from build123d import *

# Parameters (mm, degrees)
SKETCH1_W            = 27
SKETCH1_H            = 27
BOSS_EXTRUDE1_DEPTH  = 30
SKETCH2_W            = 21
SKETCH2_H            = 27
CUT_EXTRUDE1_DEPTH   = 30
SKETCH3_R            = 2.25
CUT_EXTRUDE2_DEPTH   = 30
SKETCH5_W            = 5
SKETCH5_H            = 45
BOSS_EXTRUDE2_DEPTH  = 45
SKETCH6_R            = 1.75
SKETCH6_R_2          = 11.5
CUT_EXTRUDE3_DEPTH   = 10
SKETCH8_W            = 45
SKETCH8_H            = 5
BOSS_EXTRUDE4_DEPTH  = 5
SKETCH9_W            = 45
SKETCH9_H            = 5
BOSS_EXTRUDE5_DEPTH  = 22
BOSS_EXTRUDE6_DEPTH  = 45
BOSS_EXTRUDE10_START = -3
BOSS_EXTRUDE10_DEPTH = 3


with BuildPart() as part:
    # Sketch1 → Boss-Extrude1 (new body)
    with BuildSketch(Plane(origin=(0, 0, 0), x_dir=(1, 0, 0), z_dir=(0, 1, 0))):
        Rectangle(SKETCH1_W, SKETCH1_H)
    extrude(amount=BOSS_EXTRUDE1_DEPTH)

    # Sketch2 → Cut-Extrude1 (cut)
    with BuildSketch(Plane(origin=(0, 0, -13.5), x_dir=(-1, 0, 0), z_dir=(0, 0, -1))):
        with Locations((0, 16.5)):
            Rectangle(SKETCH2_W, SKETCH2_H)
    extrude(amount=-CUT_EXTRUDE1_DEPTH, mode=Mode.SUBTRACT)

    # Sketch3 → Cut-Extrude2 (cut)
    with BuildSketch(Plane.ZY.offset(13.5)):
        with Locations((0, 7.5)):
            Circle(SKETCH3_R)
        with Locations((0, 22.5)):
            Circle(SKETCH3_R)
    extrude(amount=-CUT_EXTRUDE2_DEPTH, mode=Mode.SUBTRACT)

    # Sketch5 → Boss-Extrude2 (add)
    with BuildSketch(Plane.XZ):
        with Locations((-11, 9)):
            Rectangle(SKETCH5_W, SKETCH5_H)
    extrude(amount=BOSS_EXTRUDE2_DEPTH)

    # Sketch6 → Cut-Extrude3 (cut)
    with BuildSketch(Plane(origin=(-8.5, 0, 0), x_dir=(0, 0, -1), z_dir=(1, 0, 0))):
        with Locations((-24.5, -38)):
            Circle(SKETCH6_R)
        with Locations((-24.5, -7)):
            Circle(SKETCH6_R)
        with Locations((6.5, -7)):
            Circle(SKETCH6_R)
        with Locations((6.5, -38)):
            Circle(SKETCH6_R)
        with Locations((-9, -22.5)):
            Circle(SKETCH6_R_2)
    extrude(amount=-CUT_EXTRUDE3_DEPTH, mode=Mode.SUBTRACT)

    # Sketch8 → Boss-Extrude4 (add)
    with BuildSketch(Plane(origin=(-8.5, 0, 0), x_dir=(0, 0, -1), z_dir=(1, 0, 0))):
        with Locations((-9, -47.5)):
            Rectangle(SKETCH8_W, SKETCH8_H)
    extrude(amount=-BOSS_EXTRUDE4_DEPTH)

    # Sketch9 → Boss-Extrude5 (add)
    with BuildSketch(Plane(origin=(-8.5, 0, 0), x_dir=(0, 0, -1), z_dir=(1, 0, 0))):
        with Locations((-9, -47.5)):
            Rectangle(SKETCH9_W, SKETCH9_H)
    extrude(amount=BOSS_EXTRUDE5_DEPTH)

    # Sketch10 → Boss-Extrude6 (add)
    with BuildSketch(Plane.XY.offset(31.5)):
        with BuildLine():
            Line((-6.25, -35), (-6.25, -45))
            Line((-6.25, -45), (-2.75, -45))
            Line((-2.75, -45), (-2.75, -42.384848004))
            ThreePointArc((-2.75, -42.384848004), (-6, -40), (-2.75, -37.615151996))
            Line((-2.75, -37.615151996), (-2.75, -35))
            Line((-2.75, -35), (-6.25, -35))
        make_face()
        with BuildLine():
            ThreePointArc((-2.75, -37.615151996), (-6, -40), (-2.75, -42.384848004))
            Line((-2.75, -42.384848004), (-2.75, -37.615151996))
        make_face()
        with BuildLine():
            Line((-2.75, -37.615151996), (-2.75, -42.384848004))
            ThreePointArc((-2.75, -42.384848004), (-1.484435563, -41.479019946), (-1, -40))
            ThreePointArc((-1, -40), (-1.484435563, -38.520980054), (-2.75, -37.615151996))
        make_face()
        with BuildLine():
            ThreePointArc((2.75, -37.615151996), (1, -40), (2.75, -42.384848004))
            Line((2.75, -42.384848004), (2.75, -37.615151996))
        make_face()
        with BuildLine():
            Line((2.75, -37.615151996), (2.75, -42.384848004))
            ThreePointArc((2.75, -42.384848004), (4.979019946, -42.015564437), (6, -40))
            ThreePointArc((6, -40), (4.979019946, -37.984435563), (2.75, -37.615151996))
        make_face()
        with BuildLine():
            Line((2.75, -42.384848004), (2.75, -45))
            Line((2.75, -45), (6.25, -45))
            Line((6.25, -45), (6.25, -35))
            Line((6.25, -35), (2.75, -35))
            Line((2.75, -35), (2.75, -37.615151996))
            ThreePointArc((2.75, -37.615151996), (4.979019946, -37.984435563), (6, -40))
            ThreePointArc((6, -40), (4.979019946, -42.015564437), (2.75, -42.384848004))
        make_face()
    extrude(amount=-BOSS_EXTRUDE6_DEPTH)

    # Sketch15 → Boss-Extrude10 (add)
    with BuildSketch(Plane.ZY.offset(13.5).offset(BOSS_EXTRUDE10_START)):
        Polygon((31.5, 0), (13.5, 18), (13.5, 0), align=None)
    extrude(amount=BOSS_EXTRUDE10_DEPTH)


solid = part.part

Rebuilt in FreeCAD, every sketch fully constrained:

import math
import FreeCAD as App
import Part
import Sketcher
from FreeCAD import Vector
Q = App.Units.Quantity

doc = App.newDocument("Part")
params = doc.addObject("Spreadsheet::Sheet", "Params")
for row, (alias, value) in enumerate([
    ("sketch1_width", "27 mm"),
    ("pad1_length", "30 mm"),
    ("sketch2_width", "21 mm"),
    ("sketch2_height", "27 mm"),
    ("pocket1_length", "30 mm"),
    ("sketch3_diameter", "4.5 mm"),
    ("pocket2_length", "30 mm"),
    ("sketch4_width", "5 mm"),
    ("sketch4_height", "45 mm"),
    ("pad2_length", "45 mm"),
    ("sketch5_diameter", "23 mm"),
    ("sketch5_diameter2", "3.5 mm"),
    ("pocket3_length", "10 mm"),
    ("sketch6_width", "5 mm"),
    ("sketch6_height", "45 mm"),
    ("pad3_length", "5 mm"),
    ("sketch7_width", "5 mm"),
    ("sketch7_height", "45 mm"),
    ("pad4_length", "22 mm"),
    ("sketch8_radius", "2.5 mm"),
    ("sketch8_height", "10 mm"),
    ("sketch8_width", "3.5 mm"),
    ("pad5_length", "45 mm"),
    ("sketch9_width", "18 mm"),
    ("pad6_length", "3 mm"),
], start=1):
    params.set(f"A{row}", alias)
    params.set(f"B{row}", "=" + value)
    params.setAlias(f"B{row}", alias)

body = doc.addObject("PartDesign::Body", "Body")

# Sketch on XZ plane
sketch1 = body.newObject("Sketcher::SketchObject", "Sketch")
sketch1.AttachmentSupport = (doc.getObject("XZ_Plane"), [""])
sketch1.MapMode = "FlatFace"
sketch1.addGeometry(Part.LineSegment(Vector(-14, -14, 0), Vector(-14, 14, 0)), False)
sketch1.addGeometry(Part.LineSegment(Vector(-14, 14, 0), Vector(14, 14, 0)), False)
sketch1.addGeometry(Part.LineSegment(Vector(14, 14, 0), Vector(14, -14, 0)), False)
sketch1.addGeometry(Part.LineSegment(Vector(14, -14, 0), Vector(-14, -14, 0)), False)
sketch1.addConstraint(Sketcher.Constraint("Coincident", 0, 2, 1, 1))
sketch1.addConstraint(Sketcher.Constraint("Coincident", 1, 2, 2, 1))
sketch1.addConstraint(Sketcher.Constraint("Coincident", 2, 2, 3, 1))
sketch1.addConstraint(Sketcher.Constraint("Coincident", 3, 2, 0, 1))
sketch1.addConstraint(Sketcher.Constraint("Vertical", 0))
sketch1.addConstraint(Sketcher.Constraint("Horizontal", 1))
sketch1.addConstraint(Sketcher.Constraint("Vertical", 2))
sketch1.addConstraint(Sketcher.Constraint("Horizontal", 3))
sketch1.addConstraint(Sketcher.Constraint("Symmetric", 0, 2, 2, 2, -1, 1))
sketch1.addConstraint(Sketcher.Constraint("Equal", 3, 0))
sketch1.addConstraint(Sketcher.Constraint("DistanceX", 1, 1, 1, 2, Q("27 mm")))
sketch1.setExpression("Constraints[10]", "Params.sketch1_width")
pad1 = body.newObject("PartDesign::Pad", "Pad")
pad1.Profile = sketch1
pad1.setExpression("Length", "Params.pad1_length")
pad1.Reversed = True

# Sketch on XY plane
sketch2 = body.newObject("Sketcher::SketchObject", "Sketch001")
sketch2.AttachmentSupport = (doc.getObject("XY_Plane"), [""])
sketch2.MapMode = "FlatFace"
sketch2.AttachmentOffset = App.Placement(Vector(0, 0, -13.5), App.Rotation())
sketch2.addGeometry(Part.LineSegment(Vector(10, 30, 0), Vector(10, 3, 0)), False)
sketch2.addGeometry(Part.LineSegment(Vector(10, 3, 0), Vector(-10, 3, 0)), False)
sketch2.addGeometry(Part.LineSegment(Vector(-10, 3, 0), Vector(-10, 30, 0)), False)
sketch2.addGeometry(Part.LineSegment(Vector(-10, 30, 0), Vector(10, 30, 0)), False)
sketch2.addConstraint(Sketcher.Constraint("Coincident", 0, 2, 1, 1))
sketch2.addConstraint(Sketcher.Constraint("Coincident", 1, 2, 2, 1))
sketch2.addConstraint(Sketcher.Constraint("Coincident", 2, 2, 3, 1))
sketch2.addConstraint(Sketcher.Constraint("Coincident", 3, 2, 0, 1))
sketch2.addConstraint(Sketcher.Constraint("Vertical", 0))
sketch2.addConstraint(Sketcher.Constraint("Horizontal", 1))
sketch2.addConstraint(Sketcher.Constraint("Vertical", 2))
sketch2.addConstraint(Sketcher.Constraint("Horizontal", 3))
sketch2.addConstraint(Sketcher.Constraint("DistanceX", 1, 2, 1, 1, Q("21 mm")))
sketch2.addConstraint(Sketcher.Constraint("DistanceY", 0, 2, 0, 1, Q("27 mm")))
sketch2.addConstraint(Sketcher.Constraint("DistanceY", -1, 1, 0, 2, Q("3 mm")))
sketch2.addConstraint(Sketcher.Constraint("DistanceX", -1, 1, 0, 2, Q("10.5 mm")))
sketch2.setExpression("Constraints[8]", "Params.sketch2_width")
sketch2.setExpression("Constraints[9]", "Params.sketch2_height")
pocket1 = body.newObject("PartDesign::Pocket", "Pocket")
pocket1.Profile = sketch2
pocket1.setExpression("Length", "Params.pocket1_length")
pocket1.Reversed = True

# Sketch on YZ plane
sketch3 = body.newObject("Sketcher::SketchObject", "Sketch002")
sketch3.AttachmentSupport = (doc.getObject("YZ_Plane"), [""])
sketch3.MapMode = "FlatFace"
sketch3.AttachmentOffset = App.Placement(Vector(0, 0, -13.5), App.Rotation())
sketch3.addGeometry(Part.Circle(Vector(7.5, 0, 0), Vector(0, 0, 1), 2.2), False)
sketch3.addGeometry(Part.Circle(Vector(22.5, 0, 0), Vector(0, 0, 1), 2.2), False)
sketch3.addConstraint(Sketcher.Constraint("Equal", 0, 1))
sketch3.addConstraint(Sketcher.Constraint("PointOnObject", 0, 3, -1))
sketch3.addConstraint(Sketcher.Constraint("PointOnObject", 1, 3, -1))
sketch3.addConstraint(Sketcher.Constraint("Diameter", 0, Q("4.5 mm")))
sketch3.addConstraint(Sketcher.Constraint("DistanceX", 0, 3, 1, 3, Q("15 mm")))
sketch3.addConstraint(Sketcher.Constraint("DistanceX", -1, 1, 0, 3, Q("7.5 mm")))
sketch3.setExpression("Constraints[3]", "Params.sketch3_diameter")
pocket2 = body.newObject("PartDesign::Pocket", "Pocket001")
pocket2.Profile = sketch3
pocket2.setExpression("Length", "Params.pocket2_length")
pocket2.Reversed = True

# Sketch on XZ plane
sketch4 = body.newObject("Sketcher::SketchObject", "Sketch003")
sketch4.AttachmentSupport = (doc.getObject("XZ_Plane"), [""])
sketch4.MapMode = "FlatFace"
sketch4.addGeometry(Part.LineSegment(Vector(-14, 32, 0), Vector(-14, -14, 0)), False)
sketch4.addGeometry(Part.LineSegment(Vector(-14, -14, 0), Vector(-8, -14, 0)), False)
sketch4.addGeometry(Part.LineSegment(Vector(-8, -14, 0), Vector(-8, 32, 0)), False)
sketch4.addGeometry(Part.LineSegment(Vector(-8, 32, 0), Vector(-14, 32, 0)), False)
sketch4.addConstraint(Sketcher.Constraint("Coincident", 0, 2, 1, 1))
sketch4.addConstraint(Sketcher.Constraint("Coincident", 1, 2, 2, 1))
sketch4.addConstraint(Sketcher.Constraint("Coincident", 2, 2, 3, 1))
sketch4.addConstraint(Sketcher.Constraint("Coincident", 3, 2, 0, 1))
sketch4.addConstraint(Sketcher.Constraint("Vertical", 0))
sketch4.addConstraint(Sketcher.Constraint("Horizontal", 1))
sketch4.addConstraint(Sketcher.Constraint("Vertical", 2))
sketch4.addConstraint(Sketcher.Constraint("Horizontal", 3))
sketch4.addConstraint(Sketcher.Constraint("DistanceX", 1, 1, 1, 2, Q("5 mm")))
sketch4.addConstraint(Sketcher.Constraint("DistanceY", 0, 2, 0, 1, Q("45 mm")))
sketch4.addConstraint(Sketcher.Constraint("DistanceX", 0, 2, -1, 1, Q("13.5 mm")))
sketch4.addConstraint(Sketcher.Constraint("DistanceY", 0, 2, -1, 1, Q("13.5 mm")))
sketch4.setExpression("Constraints[8]", "Params.sketch4_width")
sketch4.setExpression("Constraints[9]", "Params.sketch4_height")
pad2 = body.newObject("PartDesign::Pad", "Pad001")
pad2.Profile = sketch4
pad2.setExpression("Length", "Params.pad2_length")

# Sketch on YZ plane
sketch5 = body.newObject("Sketcher::SketchObject", "Sketch004")
sketch5.AttachmentSupport = (doc.getObject("YZ_Plane"), [""])
sketch5.MapMode = "FlatFace"
sketch5.AttachmentOffset = App.Placement(Vector(0, 0, -8.5), App.Rotation())
sketch5.addGeometry(Part.Circle(Vector(-38, 24.5, 0), Vector(0, 0, 1), 1.8), False)
sketch5.addGeometry(Part.Circle(Vector(-7, 24.5, 0), Vector(0, 0, 1), 1.8), False)
sketch5.addGeometry(Part.Circle(Vector(-7, -6.5, 0), Vector(0, 0, 1), 1.8), False)
sketch5.addGeometry(Part.Circle(Vector(-38, -6.5, 0), Vector(0, 0, 1), 1.8), False)
sketch5.addGeometry(Part.Circle(Vector(-22.5, 9, 0), Vector(0, 0, 1), 11.5), False)
sketch5.addConstraint(Sketcher.Constraint("Equal", 0, 1))
sketch5.addConstraint(Sketcher.Constraint("Equal", 1, 2))
sketch5.addConstraint(Sketcher.Constraint("Equal", 2, 3))
sketch5.addConstraint(Sketcher.Constraint("Horizontal", 0, 3, 1, 3))
sketch5.addConstraint(Sketcher.Constraint("Horizontal", 2, 3, 3, 3))
sketch5.addConstraint(Sketcher.Constraint("Vertical", 1, 3, 2, 3))
sketch5.addConstraint(Sketcher.Constraint("Vertical", 0, 3, 3, 3))
sketch5.addConstraint(Sketcher.Constraint("Diameter", 4, Q("23 mm")))
sketch5.addConstraint(Sketcher.Constraint("Diameter", 0, Q("3.5 mm")))
sketch5.addConstraint(Sketcher.Constraint("DistanceX", 0, 3, -1, 1, Q("38 mm")))
sketch5.addConstraint(Sketcher.Constraint("DistanceX", 1, 3, -1, 1, Q("7 mm")))
sketch5.addConstraint(Sketcher.Constraint("DistanceY", -1, 1, 4, 3, Q("9 mm")))
sketch5.addConstraint(Sketcher.Constraint("DistanceY", 2, 3, 1, 3, Q("31 mm")))
sketch5.addConstraint(Sketcher.Constraint("DistanceY", -1, 1, 0, 3, Q("24.5 mm")))
sketch5.addConstraint(Sketcher.Constraint("DistanceX", 4, 3, -1, 1, Q("22.5 mm")))
sketch5.setExpression("Constraints[7]", "Params.sketch5_diameter")
sketch5.setExpression("Constraints[8]", "Params.sketch5_diameter2")
pocket3 = body.newObject("PartDesign::Pocket", "Pocket002")
pocket3.Profile = sketch5
pocket3.setExpression("Length", "Params.pocket3_length")

# Sketch on YZ plane
sketch6 = body.newObject("Sketcher::SketchObject", "Sketch005")
sketch6.AttachmentSupport = (doc.getObject("YZ_Plane"), [""])
sketch6.MapMode = "FlatFace"
sketch6.AttachmentOffset = App.Placement(Vector(0, 0, -8.5), App.Rotation())
sketch6.addGeometry(Part.LineSegment(Vector(-45, 32, 0), Vector(-50, 32, 0)), False)
sketch6.addGeometry(Part.LineSegment(Vector(-50, 32, 0), Vector(-50, -14, 0)), False)
sketch6.addGeometry(Part.LineSegment(Vector(-50, -14, 0), Vector(-45, -14, 0)), False)
sketch6.addGeometry(Part.LineSegment(Vector(-45, -14, 0), Vector(-45, 32, 0)), False)
sketch6.addConstraint(Sketcher.Constraint("Coincident", 0, 2, 1, 1))
sketch6.addConstraint(Sketcher.Constraint("Coincident", 1, 2, 2, 1))
sketch6.addConstraint(Sketcher.Constraint("Coincident", 2, 2, 3, 1))
sketch6.addConstraint(Sketcher.Constraint("Coincident", 3, 2, 0, 1))
sketch6.addConstraint(Sketcher.Constraint("Horizontal", 0))
sketch6.addConstraint(Sketcher.Constraint("Vertical", 1))
sketch6.addConstraint(Sketcher.Constraint("Horizontal", 2))
sketch6.addConstraint(Sketcher.Constraint("Vertical", 3))
sketch6.addConstraint(Sketcher.Constraint("DistanceX", 0, 2, 0, 1, Q("5 mm")))
sketch6.addConstraint(Sketcher.Constraint("DistanceY", 1, 2, 1, 1, Q("45 mm")))
sketch6.addConstraint(Sketcher.Constraint("DistanceX", 0, 2, -1, 1, Q("50 mm")))
sketch6.addConstraint(Sketcher.Constraint("DistanceY", -1, 1, 0, 2, Q("31.5 mm")))
sketch6.setExpression("Constraints[8]", "Params.sketch6_width")
sketch6.setExpression("Constraints[9]", "Params.sketch6_height")
pad3 = body.newObject("PartDesign::Pad", "Pad002")
pad3.Profile = sketch6
pad3.setExpression("Length", "Params.pad3_length")
pad3.Reversed = True

# Sketch on YZ plane
sketch7 = body.newObject("Sketcher::SketchObject", "Sketch006")
sketch7.AttachmentSupport = (doc.getObject("YZ_Plane"), [""])
sketch7.MapMode = "FlatFace"
sketch7.AttachmentOffset = App.Placement(Vector(0, 0, -8.5), App.Rotation())
sketch7.addGeometry(Part.LineSegment(Vector(-45, 32, 0), Vector(-50, 32, 0)), False)
sketch7.addGeometry(Part.LineSegment(Vector(-50, 32, 0), Vector(-50, -14, 0)), False)
sketch7.addGeometry(Part.LineSegment(Vector(-50, -14, 0), Vector(-45, -14, 0)), False)
sketch7.addGeometry(Part.LineSegment(Vector(-45, -14, 0), Vector(-45, 32, 0)), False)
sketch7.addConstraint(Sketcher.Constraint("Coincident", 0, 2, 1, 1))
sketch7.addConstraint(Sketcher.Constraint("Coincident", 1, 2, 2, 1))
sketch7.addConstraint(Sketcher.Constraint("Coincident", 2, 2, 3, 1))
sketch7.addConstraint(Sketcher.Constraint("Coincident", 3, 2, 0, 1))
sketch7.addConstraint(Sketcher.Constraint("Horizontal", 0))
sketch7.addConstraint(Sketcher.Constraint("Vertical", 1))
sketch7.addConstraint(Sketcher.Constraint("Horizontal", 2))
sketch7.addConstraint(Sketcher.Constraint("Vertical", 3))
sketch7.addConstraint(Sketcher.Constraint("DistanceX", 0, 2, 0, 1, Q("5 mm")))
sketch7.addConstraint(Sketcher.Constraint("DistanceY", 1, 2, 1, 1, Q("45 mm")))
sketch7.addConstraint(Sketcher.Constraint("DistanceX", 0, 2, -1, 1, Q("50 mm")))
sketch7.addConstraint(Sketcher.Constraint("DistanceY", -1, 1, 0, 2, Q("31.5 mm")))
sketch7.setExpression("Constraints[8]", "Params.sketch7_width")
sketch7.setExpression("Constraints[9]", "Params.sketch7_height")
pad4 = body.newObject("PartDesign::Pad", "Pad003")
pad4.Profile = sketch7
pad4.setExpression("Length", "Params.pad4_length")

# Sketch on XY plane
sketch8 = body.newObject("Sketcher::SketchObject", "Sketch007")
sketch8.AttachmentSupport = (doc.getObject("XY_Plane"), [""])
sketch8.MapMode = "FlatFace"
sketch8.AttachmentOffset = App.Placement(Vector(0, 0, 31.5), App.Rotation())
sketch8.addGeometry(Part.LineSegment(Vector(-2.8, -37.6, 0), Vector(-2.8, -35, 0)), False)
sketch8.addGeometry(Part.LineSegment(Vector(-2.8, -35, 0), Vector(-6.2, -35, 0)), False)
sketch8.addGeometry(Part.LineSegment(Vector(-6.2, -35, 0), Vector(-6.2, -45, 0)), False)
sketch8.addGeometry(Part.LineSegment(Vector(-6.2, -45, 0), Vector(-2.8, -45, 0)), False)
sketch8.addGeometry(Part.LineSegment(Vector(-2.8, -45, 0), Vector(-2.8, -42.4, 0)), False)
sketch8.addGeometry(Part.ArcOfCircle(Part.Circle(Vector(-3.5, -40, 0), Vector(0, 0, 1), 2.5), math.radians(-73), math.radians(0)), False)
sketch8.addGeometry(Part.ArcOfCircle(Part.Circle(Vector(-3.5, -40, 0), Vector(0, 0, 1), 2.5), math.radians(0), math.radians(73)), False)
sketch8.addGeometry(Part.ArcOfCircle(Part.Circle(Vector(3.5, -40, 0), Vector(0, 0, 1), 2.5), math.radians(107), math.radians(253)), False)
sketch8.addGeometry(Part.LineSegment(Vector(2.8, -42.4, 0), Vector(2.8, -45, 0)), False)
sketch8.addGeometry(Part.LineSegment(Vector(2.8, -45, 0), Vector(6.2, -45, 0)), False)
sketch8.addGeometry(Part.LineSegment(Vector(6.2, -45, 0), Vector(6.2, -35, 0)), False)
sketch8.addGeometry(Part.LineSegment(Vector(6.2, -35, 0), Vector(2.8, -35, 0)), False)
sketch8.addGeometry(Part.LineSegment(Vector(2.8, -35, 0), Vector(2.8, -37.6, 0)), False)
sketch8.addConstraint(Sketcher.Constraint("Coincident", 0, 2, 1, 1))
sketch8.addConstraint(Sketcher.Constraint("Coincident", 1, 2, 2, 1))
sketch8.addConstraint(Sketcher.Constraint("Coincident", 2, 2, 3, 1))
sketch8.addConstraint(Sketcher.Constraint("Coincident", 3, 2, 4, 1))
sketch8.addConstraint(Sketcher.Constraint("Coincident", 4, 2, 5, 1))
sketch8.addConstraint(Sketcher.Constraint("Tangent", 5, 2, 6, 1))
sketch8.addConstraint(Sketcher.Constraint("Coincident", 6, 2, 0, 1))
sketch8.addConstraint(Sketcher.Constraint("Coincident", 7, 2, 8, 1))
sketch8.addConstraint(Sketcher.Constraint("Coincident", 8, 2, 9, 1))
sketch8.addConstraint(Sketcher.Constraint("Coincident", 9, 2, 10, 1))
sketch8.addConstraint(Sketcher.Constraint("Coincident", 10, 2, 11, 1))
sketch8.addConstraint(Sketcher.Constraint("Coincident", 11, 2, 12, 1))
sketch8.addConstraint(Sketcher.Constraint("Coincident", 12, 2, 7, 1))
sketch8.addConstraint(Sketcher.Constraint("Vertical", 0))
sketch8.addConstraint(Sketcher.Constraint("Horizontal", 1))
sketch8.addConstraint(Sketcher.Constraint("Vertical", 2))
sketch8.addConstraint(Sketcher.Constraint("Horizontal", 3))
sketch8.addConstraint(Sketcher.Constraint("Vertical", 4))
sketch8.addConstraint(Sketcher.Constraint("Vertical", 8))
sketch8.addConstraint(Sketcher.Constraint("Horizontal", 9))
sketch8.addConstraint(Sketcher.Constraint("Vertical", 10))
sketch8.addConstraint(Sketcher.Constraint("Horizontal", 11))
sketch8.addConstraint(Sketcher.Constraint("Vertical", 12))
sketch8.addConstraint(Sketcher.Constraint("Equal", 5, 6))
sketch8.addConstraint(Sketcher.Constraint("Equal", 6, 7))
sketch8.addConstraint(Sketcher.Constraint("Symmetric", 5, 3, 7, 3, -2))
sketch8.addConstraint(Sketcher.Constraint("Symmetric", 3, 2, 8, 2, -2))
sketch8.addConstraint(Sketcher.Constraint("Symmetric", 1, 2, 10, 2, -2))
sketch8.addConstraint(Sketcher.Constraint("Horizontal", 7, 3, 5, 2))
sketch8.addConstraint(Sketcher.Constraint("Horizontal", 6, 2, 12, 2))
sketch8.addConstraint(Sketcher.Constraint("Vertical", 0, 2, 3, 2))
sketch8.addConstraint(Sketcher.Constraint("Equal", 0, 4))
sketch8.addConstraint(Sketcher.Constraint("Radius", 5, Q("2.5 mm")))
sketch8.addConstraint(Sketcher.Constraint("DistanceY", 2, 2, 2, 1, Q("10 mm")))
sketch8.addConstraint(Sketcher.Constraint("DistanceX", 1, 2, 1, 1, Q("3.5 mm")))
sketch8.addConstraint(Sketcher.Constraint("DistanceY", 5, 3, -1, 1, Q("40 mm")))
sketch8.addConstraint(Sketcher.Constraint("DistanceX", 5, 2, -1, 1, Q("1 mm")))
sketch8.addConstraint(Sketcher.Constraint("DistanceX", 3, 2, 9, 2, Q("9 mm")))
sketch8.setExpression("Constraints[32]", "Params.sketch8_radius")
sketch8.setExpression("Constraints[33]", "Params.sketch8_height")
sketch8.setExpression("Constraints[34]", "Params.sketch8_width")
pad5 = body.newObject("PartDesign::Pad", "Pad004")
pad5.Profile = sketch8
pad5.setExpression("Length", "Params.pad5_length")
pad5.Reversed = True

# Sketch on YZ plane
sketch9 = body.newObject("Sketcher::SketchObject", "Sketch008")
sketch9.AttachmentSupport = (doc.getObject("YZ_Plane"), [""])
sketch9.MapMode = "FlatFace"
sketch9.AttachmentOffset = App.Placement(Vector(0, 0, -10.5), App.Rotation())
sketch9.addGeometry(Part.LineSegment(Vector(0, 32, 0), Vector(18, 14, 0)), False)
sketch9.addGeometry(Part.LineSegment(Vector(18, 14, 0), Vector(0, 14, 0)), False)
sketch9.addGeometry(Part.LineSegment(Vector(0, 14, 0), Vector(0, 32, 0)), False)
sketch9.addConstraint(Sketcher.Constraint("Coincident", 0, 2, 1, 1))
sketch9.addConstraint(Sketcher.Constraint("Coincident", 1, 2, 2, 1))
sketch9.addConstraint(Sketcher.Constraint("Coincident", 2, 2, 0, 1))
sketch9.addConstraint(Sketcher.Constraint("Horizontal", 1))
sketch9.addConstraint(Sketcher.Constraint("Vertical", 2))
sketch9.addConstraint(Sketcher.Constraint("PointOnObject", 1, 2, -2))
sketch9.addConstraint(Sketcher.Constraint("Equal", 1, 2))
sketch9.addConstraint(Sketcher.Constraint("DistanceX", 1, 2, 1, 1, Q("18 mm")))
sketch9.addConstraint(Sketcher.Constraint("DistanceY", -1, 1, 0, 2, Q("13.5 mm")))
sketch9.setExpression("Constraints[7]", "Params.sketch9_width")
pad6 = body.newObject("PartDesign::Pad", "Pad005")
pad6.Profile = sketch9
pad6.setExpression("Length", "Params.pad6_length")
pad6.Reversed = True

doc.recompute()
